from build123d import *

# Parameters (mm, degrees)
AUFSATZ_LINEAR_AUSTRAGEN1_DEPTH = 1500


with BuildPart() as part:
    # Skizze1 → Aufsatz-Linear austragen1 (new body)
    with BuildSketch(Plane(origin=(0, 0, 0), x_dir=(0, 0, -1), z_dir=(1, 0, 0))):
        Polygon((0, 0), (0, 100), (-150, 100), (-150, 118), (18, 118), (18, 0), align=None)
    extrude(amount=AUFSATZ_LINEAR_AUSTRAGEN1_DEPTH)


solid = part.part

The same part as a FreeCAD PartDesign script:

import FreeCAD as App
import Part
import Sketcher

doc = App.newDocument("Part")
body = doc.addObject("PartDesign::Body", "Body")

# Sketch on YZ plane
sketch1 = doc.addObject("Sketcher::SketchObject", "Sketch")
body.addObject(sketch1)
sketch1.AttachmentSupport = (doc.YZ_Plane, [""])
sketch1.MapMode = "FlatFace"
sketch1.addGeometry(Part.LineSegment(App.Vector(100, 0, 0), App.Vector(0, 0, 0)), False)
sketch1.addGeometry(Part.LineSegment(App.Vector(0, 0, 0), App.Vector(0, -18, 0)), False)
sketch1.addGeometry(Part.LineSegment(App.Vector(0, -18, 0), App.Vector(118, -18, 0)), False)
sketch1.addGeometry(Part.LineSegment(App.Vector(118, -18, 0), App.Vector(118, 150, 0)), False)
sketch1.addGeometry(Part.LineSegment(App.Vector(118, 150, 0), App.Vector(100, 150, 0)), False)
sketch1.addGeometry(Part.LineSegment(App.Vector(100, 150, 0), App.Vector(100, 0, 0)), False)
sketch1.addConstraint(Sketcher.Constraint("Coincident", 0, 2, 1, 1))
sketch1.addConstraint(Sketcher.Constraint("Coincident", 1, 2, 2, 1))
sketch1.addConstraint(Sketcher.Constraint("Coincident", 2, 2, 3, 1))
sketch1.addConstraint(Sketcher.Constraint("Coincident", 3, 2, 4, 1))
sketch1.addConstraint(Sketcher.Constraint("Coincident", 4, 2, 5, 1))
sketch1.addConstraint(Sketcher.Constraint("Coincident", 5, 2, 0, 1))
sketch1.addConstraint(Sketcher.Constraint("Horizontal", 0))
sketch1.addConstraint(Sketcher.Constraint("Vertical", 1))
sketch1.addConstraint(Sketcher.Constraint("Horizontal", 2))
sketch1.addConstraint(Sketcher.Constraint("Vertical", 3))
sketch1.addConstraint(Sketcher.Constraint("Horizontal", 4))
sketch1.addConstraint(Sketcher.Constraint("Vertical", 5))
sketch1.addConstraint(Sketcher.Constraint("Coincident", 0, 2, -1, 1))
sketch1.addConstraint(Sketcher.Constraint("Equal", 4, 1))
sketch1.addConstraint(Sketcher.Constraint("DistanceX", 0, 2, 0, 1, 100.0))
sketch1.addConstraint(Sketcher.Constraint("DistanceX", 2, 1, 2, 2, 118.0))
sketch1.addConstraint(Sketcher.Constraint("DistanceY", 3, 1, 3, 2, 168.0))
pad1 = doc.addObject("PartDesign::Pad", "Pad")
body.addObject(pad1)
pad1.Profile = sketch1
pad1.Length = 1500

doc.recompute()
